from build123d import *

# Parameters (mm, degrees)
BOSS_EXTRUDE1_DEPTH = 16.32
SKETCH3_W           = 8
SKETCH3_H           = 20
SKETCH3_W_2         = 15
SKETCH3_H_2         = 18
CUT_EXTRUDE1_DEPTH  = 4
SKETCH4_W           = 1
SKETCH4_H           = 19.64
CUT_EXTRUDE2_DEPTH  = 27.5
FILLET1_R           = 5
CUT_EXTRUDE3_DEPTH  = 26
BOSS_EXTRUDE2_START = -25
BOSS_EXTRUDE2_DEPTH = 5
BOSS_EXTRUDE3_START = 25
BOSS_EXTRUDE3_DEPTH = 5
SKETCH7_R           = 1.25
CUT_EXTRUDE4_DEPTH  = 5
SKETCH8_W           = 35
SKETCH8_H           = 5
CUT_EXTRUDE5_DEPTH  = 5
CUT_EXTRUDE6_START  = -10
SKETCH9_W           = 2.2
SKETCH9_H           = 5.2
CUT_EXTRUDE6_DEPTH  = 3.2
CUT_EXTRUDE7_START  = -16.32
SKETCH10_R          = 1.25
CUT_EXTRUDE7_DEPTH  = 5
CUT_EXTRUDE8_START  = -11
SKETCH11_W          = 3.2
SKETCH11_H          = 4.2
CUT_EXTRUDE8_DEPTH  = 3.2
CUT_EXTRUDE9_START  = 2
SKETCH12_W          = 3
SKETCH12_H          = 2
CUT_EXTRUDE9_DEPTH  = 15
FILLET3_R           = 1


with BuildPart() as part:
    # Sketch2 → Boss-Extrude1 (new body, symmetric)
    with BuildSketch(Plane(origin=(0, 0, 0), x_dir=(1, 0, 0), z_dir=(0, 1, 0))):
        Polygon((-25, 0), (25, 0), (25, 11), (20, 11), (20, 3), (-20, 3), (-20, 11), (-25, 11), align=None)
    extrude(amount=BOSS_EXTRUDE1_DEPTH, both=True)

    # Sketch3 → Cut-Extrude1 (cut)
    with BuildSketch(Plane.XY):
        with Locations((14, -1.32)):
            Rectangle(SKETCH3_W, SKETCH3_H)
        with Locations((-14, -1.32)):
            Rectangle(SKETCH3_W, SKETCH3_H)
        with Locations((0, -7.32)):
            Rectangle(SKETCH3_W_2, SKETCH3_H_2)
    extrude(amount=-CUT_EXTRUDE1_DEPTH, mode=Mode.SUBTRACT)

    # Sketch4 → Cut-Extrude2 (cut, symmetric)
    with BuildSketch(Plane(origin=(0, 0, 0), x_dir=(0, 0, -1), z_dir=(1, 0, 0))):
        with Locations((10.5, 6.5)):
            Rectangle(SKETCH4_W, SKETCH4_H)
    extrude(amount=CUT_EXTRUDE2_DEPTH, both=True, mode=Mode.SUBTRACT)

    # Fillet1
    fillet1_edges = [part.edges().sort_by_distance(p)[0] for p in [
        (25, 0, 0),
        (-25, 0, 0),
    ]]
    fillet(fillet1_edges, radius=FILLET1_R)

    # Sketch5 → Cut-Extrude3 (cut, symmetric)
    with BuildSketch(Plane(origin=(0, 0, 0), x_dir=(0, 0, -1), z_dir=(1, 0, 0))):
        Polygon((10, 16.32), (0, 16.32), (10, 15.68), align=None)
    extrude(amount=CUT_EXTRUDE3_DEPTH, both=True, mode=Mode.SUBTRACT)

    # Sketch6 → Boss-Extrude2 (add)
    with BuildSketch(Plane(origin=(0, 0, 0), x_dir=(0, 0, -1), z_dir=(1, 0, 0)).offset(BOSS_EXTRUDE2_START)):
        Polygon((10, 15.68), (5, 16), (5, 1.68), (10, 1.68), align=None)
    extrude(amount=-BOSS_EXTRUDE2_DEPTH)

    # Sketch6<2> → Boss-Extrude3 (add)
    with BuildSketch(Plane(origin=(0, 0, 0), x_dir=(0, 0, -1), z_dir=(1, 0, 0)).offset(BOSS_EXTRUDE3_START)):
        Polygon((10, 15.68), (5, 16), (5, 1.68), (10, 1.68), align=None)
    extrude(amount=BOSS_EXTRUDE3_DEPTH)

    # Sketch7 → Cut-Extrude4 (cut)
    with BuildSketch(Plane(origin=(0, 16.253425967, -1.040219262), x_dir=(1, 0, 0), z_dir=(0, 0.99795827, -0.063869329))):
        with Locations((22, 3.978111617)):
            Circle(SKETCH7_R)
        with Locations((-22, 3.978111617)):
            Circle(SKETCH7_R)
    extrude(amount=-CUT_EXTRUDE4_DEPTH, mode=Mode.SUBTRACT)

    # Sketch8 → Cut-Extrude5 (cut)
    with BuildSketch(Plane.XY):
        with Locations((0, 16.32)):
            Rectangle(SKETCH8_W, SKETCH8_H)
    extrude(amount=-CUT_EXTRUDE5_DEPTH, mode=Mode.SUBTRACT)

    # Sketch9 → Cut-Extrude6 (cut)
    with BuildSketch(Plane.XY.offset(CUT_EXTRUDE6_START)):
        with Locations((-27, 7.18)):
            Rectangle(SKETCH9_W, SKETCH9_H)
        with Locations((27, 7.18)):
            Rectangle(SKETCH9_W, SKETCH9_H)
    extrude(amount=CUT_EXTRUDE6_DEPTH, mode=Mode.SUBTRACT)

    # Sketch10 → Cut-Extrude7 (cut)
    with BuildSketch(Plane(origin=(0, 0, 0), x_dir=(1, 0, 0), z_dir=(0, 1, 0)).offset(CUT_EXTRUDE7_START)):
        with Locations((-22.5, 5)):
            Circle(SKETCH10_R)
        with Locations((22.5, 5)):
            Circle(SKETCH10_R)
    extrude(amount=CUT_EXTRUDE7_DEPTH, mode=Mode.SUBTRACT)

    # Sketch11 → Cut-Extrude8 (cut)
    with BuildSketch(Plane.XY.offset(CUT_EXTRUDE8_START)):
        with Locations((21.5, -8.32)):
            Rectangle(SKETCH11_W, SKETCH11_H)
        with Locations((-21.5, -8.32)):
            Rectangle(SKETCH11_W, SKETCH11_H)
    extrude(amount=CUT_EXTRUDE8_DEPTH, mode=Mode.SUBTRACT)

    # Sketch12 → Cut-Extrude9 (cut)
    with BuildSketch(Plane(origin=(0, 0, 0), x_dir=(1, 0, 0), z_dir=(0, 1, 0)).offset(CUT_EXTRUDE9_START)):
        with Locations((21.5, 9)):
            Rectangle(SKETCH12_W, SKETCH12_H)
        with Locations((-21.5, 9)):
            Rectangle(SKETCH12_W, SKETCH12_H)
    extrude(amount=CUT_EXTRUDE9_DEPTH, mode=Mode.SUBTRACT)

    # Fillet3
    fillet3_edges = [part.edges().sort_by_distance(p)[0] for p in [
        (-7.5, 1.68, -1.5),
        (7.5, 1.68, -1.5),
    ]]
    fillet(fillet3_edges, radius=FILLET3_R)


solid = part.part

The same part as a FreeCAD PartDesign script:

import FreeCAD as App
import Part
import Sketcher
from FreeCAD import Vector
Q = App.Units.Quantity


def edges_at(feature, points):
    """Names of the edges that pass closest to the given points."""
    edges = feature.Shape.Edges
    near = lambda p: min(range(len(edges)), key=lambda i: edges[i].distToShape(Part.Vertex(*p))[0])
    return sorted({f"Edge{near(p) + 1}" for p in points})

doc = App.newDocument("Part")
body = doc.addObject("PartDesign::Body", "Body")

# Sketch on XZ plane
sketch1 = body.newObject("Sketcher::SketchObject", "Sketch")
sketch1.AttachmentSupport = (doc.getObject("XZ_Plane"), [""])
sketch1.MapMode = "FlatFace"
sketch1.addGeometry([
    Part.LineSegment(Vector(-25, 0, 0), Vector(25, 0, 0)),  # 0
    Part.LineSegment(Vector(25, 0, 0), Vector(25, -11, 0)),  # 1
    Part.LineSegment(Vector(25, -11, 0), Vector(20, -11, 0)),  # 2
    Part.LineSegment(Vector(20, -11, 0), Vector(20, -3, 0)),  # 3
    Part.LineSegment(Vector(20, -3, 0), Vector(-20, -3, 0)),  # 4
    Part.LineSegment(Vector(-20, -3, 0), Vector(-20, -11, 0)),  # 5
    Part.LineSegment(Vector(-20, -11, 0), Vector(-25, -11, 0)),  # 6
    Part.LineSegment(Vector(-25, -11, 0), Vector(-25, 0, 0)),  # 7
], False)
sketch1.addConstraint([
    Sketcher.Constraint("Coincident", 0, 2, 1, 1),
    Sketcher.Constraint("Coincident", 1, 2, 2, 1),
    Sketcher.Constraint("Coincident", 2, 2, 3, 1),
    Sketcher.Constraint("Coincident", 3, 2, 4, 1),
    Sketcher.Constraint("Coincident", 4, 2, 5, 1),
    Sketcher.Constraint("Coincident", 5, 2, 6, 1),
    Sketcher.Constraint("Coincident", 6, 2, 7, 1),
    Sketcher.Constraint("Coincident", 7, 2, 0, 1),
    Sketcher.Constraint("Horizontal", 0),
    Sketcher.Constraint("Vertical", 1),
    Sketcher.Constraint("Horizontal", 2),
    Sketcher.Constraint("Vertical", 3),
    Sketcher.Constraint("Horizontal", 4),
    Sketcher.Constraint("Vertical", 5),
    Sketcher.Constraint("Horizontal", 6),
    Sketcher.Constraint("Vertical", 7),
    Sketcher.Constraint("Symmetric", 0, 2, 7, 2, -1, 1),
    Sketcher.Constraint("Symmetric", 2, 2, 5, 2, -2),
    Sketcher.Constraint("DistanceX", 0, 1, 0, 2, Q("50 mm")),
    Sketcher.Constraint("DistanceX", 2, 2, 2, 1, Q("5 mm")),
    Sketcher.Constraint("DistanceY", 1, 2, 1, 1, Q("11 mm")),
    Sketcher.Constraint("DistanceY", 3, 1, 3, 2, Q("8 mm")),
])
pad1 = body.newObject("PartDesign::Pad", "Pad")
pad1.Profile = sketch1
pad1.Length = 32.64
pad1.Midplane = True

# Sketch on XY plane
sketch2 = body.newObject("Sketcher::SketchObject", "Sketch001")
sketch2.AttachmentSupport = (doc.getObject("XY_Plane"), [""])
sketch2.MapMode = "FlatFace"
sketch2.addGeometry([
    Part.LineSegment(Vector(10, 8.68, 0), Vector(10, -11.32, 0)),  # 0
    Part.LineSegment(Vector(10, -11.32, 0), Vector(18, -11.32, 0)),  # 1
    Part.LineSegment(Vector(18, -11.32, 0), Vector(18, 8.68, 0)),  # 2
    Part.LineSegment(Vector(18, 8.68, 0), Vector(10, 8.68, 0)),  # 3
    Part.LineSegment(Vector(-18, 8.68, 0), Vector(-18, -11.32, 0)),  # 4
    Part.LineSegment(Vector(-18, -11.32, 0), Vector(-10, -11.32, 0)),  # 5
    Part.LineSegment(Vector(-10, -11.32, 0), Vector(-10, 8.68, 0)),  # 6
    Part.LineSegment(Vector(-10, 8.68, 0), Vector(-18, 8.68, 0)),  # 7
    Part.LineSegment(Vector(-7.5, 1.68, 0), Vector(-7.5, -16.32, 0)),  # 8
    Part.LineSegment(Vector(-7.5, -16.32, 0), Vector(7.5, -16.32, 0)),  # 9
    Part.LineSegment(Vector(7.5, -16.32, 0), Vector(7.5, 1.68, 0)),  # 10
    Part.LineSegment(Vector(7.5, 1.68, 0), Vector(-7.5, 1.68, 0)),  # 11
], False)
sketch2.addConstraint([
    Sketcher.Constraint("Coincident", 0, 2, 1, 1),
    Sketcher.Constraint("Coincident", 1, 2, 2, 1),
    Sketcher.Constraint("Coincident", 2, 2, 3, 1),
    Sketcher.Constraint("Coincident", 3, 2, 0, 1),
    Sketcher.Constraint("Coincident", 4, 2, 5, 1),
    Sketcher.Constraint("Coincident", 5, 2, 6, 1),
    Sketcher.Constraint("Coincident", 6, 2, 7, 1),
    Sketcher.Constraint("Coincident", 7, 2, 4, 1),
    Sketcher.Constraint("Coincident", 8, 2, 9, 1),
    Sketcher.Constraint("Coincident", 9, 2, 10, 1),
    Sketcher.Constraint("Coincident", 10, 2, 11, 1),
    Sketcher.Constraint("Coincident", 11, 2, 8, 1),
    Sketcher.Constraint("Vertical", 0),
    Sketcher.Constraint("Horizontal", 1),
    Sketcher.Constraint("Vertical", 2),
    Sketcher.Constraint("Horizontal", 3),
    Sketcher.Constraint("Vertical", 4),
    Sketcher.Constraint("Horizontal", 5),
    Sketcher.Constraint("Vertical", 6),
    Sketcher.Constraint("Horizontal", 7),
    Sketcher.Constraint("Vertical", 8),
    Sketcher.Constraint("Horizontal", 9),
    Sketcher.Constraint("Vertical", 10),
    Sketcher.Constraint("Horizontal", 11),
    Sketcher.Constraint("Symmetric", 1, 2, 4, 2, -2),
    Sketcher.Constraint("Symmetric", 3, 2, 6, 2, -2),
    Sketcher.Constraint("DistanceX", 1, 1, 1, 2, Q("8 mm")),
    Sketcher.Constraint("DistanceX", 9, 1, 9, 2, Q("15 mm")),
    Sketcher.Constraint("DistanceY", 0, 2, 0, 1, Q("20 mm")),
    Sketcher.Constraint("DistanceY", 8, 2, 8, 1, Q("18 mm")),
    Sketcher.Constraint("DistanceX", -1, 1, 0, 2, Q("10 mm")),
    Sketcher.Constraint("DistanceY", 8, 2, 5, 2, Q("5 mm")),
    Sketcher.Constraint("DistanceX", 8, 2, -1, 1, Q("7.5 mm")),
    Sketcher.Constraint("DistanceY", 0, 2, -1, 1, Q("11.32 mm")),
])
pocket1 = body.newObject("PartDesign::Pocket", "Pocket")
pocket1.Profile = sketch2
pocket1.Length = 4

# Sketch on YZ plane
sketch3 = body.newObject("Sketcher::SketchObject", "Sketch002")
sketch3.AttachmentSupport = (doc.getObject("YZ_Plane"), [""])
sketch3.MapMode = "FlatFace"
sketch3.addGeometry([
    Part.LineSegment(Vector(16.32, -10, 0), Vector(-3.32, -10, 0)),
    Part.LineSegment(Vector(-3.32, -10, 0), Vector(-3.32, -11, 0)),
    Part.LineSegment(Vector(-3.32, -11, 0), Vector(16.32, -11, 0)),
    Part.LineSegment(Vector(16.32, -11, 0), Vector(16.32, -10, 0)),
], False)
sketch3.addConstraint([
    Sketcher.Constraint("Coincident", 0, 2, 1, 1),
    Sketcher.Constraint("Coincident", 1, 2, 2, 1),
    Sketcher.Constraint("Coincident", 2, 2, 3, 1),
    Sketcher.Constraint("Coincident", 3, 2, 0, 1),
    Sketcher.Constraint("Horizontal", 0),
    Sketcher.Constraint("Vertical", 1),
    Sketcher.Constraint("Horizontal", 2),
    Sketcher.Constraint("Vertical", 3),
    Sketcher.Constraint("DistanceY", 1, 2, 1, 1, Q("1 mm")),
    Sketcher.Constraint("DistanceY", 0, 2, -1, 1, Q("10 mm")),
    Sketcher.Constraint("DistanceX", 0, 2, 0, 1, Q("19.64 mm")),
    Sketcher.Constraint("DistanceX", 0, 2, -1, 1, Q("3.32 mm")),
])
pocket2 = body.newObject("PartDesign::Pocket", "Pocket001")
pocket2.Profile = sketch3
pocket2.Length = 55
pocket2.Midplane = True
doc.recompute()

fillet = body.newObject("PartDesign::Fillet", "Fillet")
fillet.Base = (pocket2, edges_at(pocket2, [(25, 0, 0), (-25, 0, 0)]))
fillet.Radius = 5

# Sketch on YZ plane
sketch4 = body.newObject("Sketcher::SketchObject", "Sketch003")
sketch4.AttachmentSupport = (doc.getObject("YZ_Plane"), [""])
sketch4.MapMode = "FlatFace"
sketch4.addGeometry([
    Part.LineSegment(Vector(16.32, -10, 0), Vector(16.32, 0, 0)),
    Part.LineSegment(Vector(16.32, 0, 0), Vector(15.68, -10, 0)),
    Part.LineSegment(Vector(15.68, -10, 0), Vector(16.32, -10, 0)),
], False)
sketch4.addConstraint([
    Sketcher.Constraint("Coincident", 0, 2, 1, 1),
    Sketcher.Constraint("Coincident", 1, 2, 2, 1),
    Sketcher.Constraint("Coincident", 2, 2, 0, 1),
    Sketcher.Constraint("Vertical", 0),
    Sketcher.Constraint("Horizontal", 2),
    Sketcher.Constraint("PointOnObject", 0, 2, -1),
    Sketcher.Constraint("DistanceY", 0, 1, 0, 2, Q("10 mm")),
    Sketcher.Constraint("DistanceX", 2, 1, 2, 2, Q("0.64 mm")),
    Sketcher.Constraint("DistanceX", -1, 1, 0, 2, Q("16.32 mm")),
])
pocket3 = body.newObject("PartDesign::Pocket", "Pocket002")
pocket3.Profile = sketch4
pocket3.Length = 52
pocket3.Midplane = True

# Sketch on YZ plane
sketch5 = body.newObject("Sketcher::SketchObject", "Sketch004")
sketch5.AttachmentSupport = (doc.getObject("YZ_Plane"), [""])
sketch5.MapMode = "FlatFace"
sketch5.AttachmentOffset = App.Placement(Vector(0, 0, -25), App.Rotation())
sketch5.addGeometry([
    Part.LineSegment(Vector(15.68, -10, 0), Vector(16, -5, 0)),
    Part.LineSegment(Vector(16, -5, 0), Vector(1.68, -5, 0)),
    Part.LineSegment(Vector(1.68, -5, 0), Vector(1.68, -10, 0)),
    Part.LineSegment(Vector(1.68, -10, 0), Vector(15.68, -10, 0)),
], False)
sketch5.addConstraint([
    Sketcher.Constraint("Coincident", 0, 2, 1, 1),
    Sketcher.Constraint("Coincident", 1, 2, 2, 1),
    Sketcher.Constraint("Coincident", 2, 2, 3, 1),
    Sketcher.Constraint("Coincident", 3, 2, 0, 1),
    Sketcher.Constraint("Horizontal", 1),
    Sketcher.Constraint("Vertical", 2),
    Sketcher.Constraint("Horizontal", 3),
    Sketcher.Constraint("DistanceX", 3, 1, 3, 2, Q("14 mm")),
    Sketcher.Constraint("DistanceY", 2, 2, 2, 1, Q("5 mm")),
    Sketcher.Constraint("DistanceX", -1, 1, 0, 2, Q("16 mm")),
    Sketcher.Constraint("DistanceY", 0, 2, -1, 1, Q("5 mm")),
    Sketcher.Constraint("DistanceX", 1, 2, 1, 1, Q("14.32 mm")),
])
pad2 = body.newObject("PartDesign::Pad", "Pad001")
pad2.Profile = sketch5
pad2.Length = 5
pad2.Reversed = True

# Sketch on YZ plane
sketch6 = body.newObject("Sketcher::SketchObject", "Sketch005")
sketch6.AttachmentSupport = (doc.getObject("YZ_Plane"), [""])
sketch6.MapMode = "FlatFace"
sketch6.AttachmentOffset = App.Placement(Vector(0, 0, 25), App.Rotation())
sketch6.addGeometry([
    Part.LineSegment(Vector(15.68, -10, 0), Vector(16, -5, 0)),
    Part.LineSegment(Vector(16, -5, 0), Vector(1.68, -5, 0)),
    Part.LineSegment(Vector(1.68, -5, 0), Vector(1.68, -10, 0)),
    Part.LineSegment(Vector(1.68, -10, 0), Vector(15.68, -10, 0)),
], False)
sketch6.addConstraint([
    Sketcher.Constraint("Coincident", 0, 2, 1, 1),
    Sketcher.Constraint("Coincident", 1, 2, 2, 1),
    Sketcher.Constraint("Coincident", 2, 2, 3, 1),
    Sketcher.Constraint("Coincident", 3, 2, 0, 1),
    Sketcher.Constraint("Horizontal", 1),
    Sketcher.Constraint("Vertical", 2),
    Sketcher.Constraint("Horizontal", 3),
    Sketcher.Constraint("DistanceX", 3, 1, 3, 2, Q("14 mm")),
    Sketcher.Constraint("DistanceY", 2, 2, 2, 1, Q("5 mm")),
    Sketcher.Constraint("DistanceX", -1, 1, 0, 2, Q("16 mm")),
    Sketcher.Constraint("DistanceY", 0, 2, -1, 1, Q("5 mm")),
    Sketcher.Constraint("DistanceX", 1, 2, 1, 1, Q("14.32 mm")),
])
pad3 = body.newObject("PartDesign::Pad", "Pad002")
pad3.Profile = sketch6
pad3.Length = 5

# Sketch on an angled plane
sketch7 = body.newObject("Sketcher::SketchObject", "Sketch006")
sketch7.Placement = App.Placement(Vector(0, 16.253426, -1.040219), App.Rotation(Vector(1, 0, 0), Vector(0, -0.063869329, -0.99795827), Vector(0, 0.99795827, -0.063869329), "ZXY"))
sketch7.addGeometry([
    Part.Circle(Vector(22, 3.978112, 0), Vector(0, 0, 1), 1.25),
    Part.Circle(Vector(-22, 3.978112, 0), Vector(0, 0, 1), 1.25),
], False)
sketch7.addConstraint([
    Sketcher.Constraint("Equal", 0, 1),
    Sketcher.Constraint("Symmetric", 0, 3, 1, 3, -2),
    Sketcher.Constraint("Diameter", 0, Q("2.5 mm")),
    Sketcher.Constraint("DistanceX", -1, 1, 0, 3, Q("22 mm")),
    Sketcher.Constraint("DistanceY", -1, 1, 0, 3, Q("3.978112 mm")),
])
pocket4 = body.newObject("PartDesign::Pocket", "Pocket003")
pocket4.Profile = sketch7
pocket4.Length = 5

# Sketch on XY plane
sketch8 = body.newObject("Sketcher::SketchObject", "Sketch007")
sketch8.AttachmentSupport = (doc.getObject("XY_Plane"), [""])
sketch8.MapMode = "FlatFace"
sketch8.addGeometry([
    Part.LineSegment(Vector(-17.5, 18.82, 0), Vector(-17.5, 13.82, 0)),
    Part.LineSegment(Vector(-17.5, 13.82, 0), Vector(17.5, 13.82, 0)),
    Part.LineSegment(Vector(17.5, 13.82, 0), Vector(17.5, 18.82, 0)),
    Part.LineSegment(Vector(17.5, 18.82, 0), Vector(-17.5, 18.82, 0)),
], False)
sketch8.addConstraint([
    Sketcher.Constraint("Coincident", 0, 2, 1, 1),
    Sketcher.Constraint("Coincident", 1, 2, 2, 1),
    Sketcher.Constraint("Coincident", 2, 2, 3, 1),
    Sketcher.Constraint("Coincident", 3, 2, 0, 1),
    Sketcher.Constraint("Vertical", 0),
    Sketcher.Constraint("Horizontal", 1),
    Sketcher.Constraint("Vertical", 2),
    Sketcher.Constraint("Horizontal", 3),
    Sketcher.Constraint("DistanceX", 1, 1, 1, 2, Q("35 mm")),
    Sketcher.Constraint("DistanceY", 0, 2, 0, 1, Q("5 mm")),
    Sketcher.Constraint("DistanceX", 0, 2, -1, 1, Q("17.5 mm")),
    Sketcher.Constraint("DistanceY", -1, 1, 0, 2, Q("13.82 mm")),
])
pocket5 = body.newObject("PartDesign::Pocket", "Pocket004")
pocket5.Profile = sketch8
pocket5.Length = 5

# Sketch on XY plane
sketch9 = body.newObject("Sketcher::SketchObject", "Sketch008")
sketch9.AttachmentSupport = (doc.getObject("XY_Plane"), [""])
sketch9.MapMode = "FlatFace"
sketch9.AttachmentOffset = App.Placement(Vector(0, 0, -10), App.Rotation())
sketch9.addGeometry([
    Part.LineSegment(Vector(-28.1, 9.78, 0), Vector(-28.1, 4.58, 0)),  # 0
    Part.LineSegment(Vector(-28.1, 4.58, 0), Vector(-25.9, 4.58, 0)),  # 1
    Part.LineSegment(Vector(-25.9, 4.58, 0), Vector(-25.9, 9.78, 0)),  # 2
    Part.LineSegment(Vector(-25.9, 9.78, 0), Vector(-28.1, 9.78, 0)),  # 3
    Part.LineSegment(Vector(25.9, 9.78, 0), Vector(25.9, 4.58, 0)),  # 4
    Part.LineSegment(Vector(25.9, 4.58, 0), Vector(28.1, 4.58, 0)),  # 5
    Part.LineSegment(Vector(28.1, 4.58, 0), Vector(28.1, 9.78, 0)),  # 6
    Part.LineSegment(Vector(28.1, 9.78, 0), Vector(25.9, 9.78, 0)),  # 7
], False)
sketch9.addConstraint([
    Sketcher.Constraint("Coincident", 0, 2, 1, 1),
    Sketcher.Constraint("Coincident", 1, 2, 2, 1),
    Sketcher.Constraint("Coincident", 2, 2, 3, 1),
    Sketcher.Constraint("Coincident", 3, 2, 0, 1),
    Sketcher.Constraint("Coincident", 4, 2, 5, 1),
    Sketcher.Constraint("Coincident", 5, 2, 6, 1),
    Sketcher.Constraint("Coincident", 6, 2, 7, 1),
    Sketcher.Constraint("Coincident", 7, 2, 4, 1),
    Sketcher.Constraint("Vertical", 0),
    Sketcher.Constraint("Horizontal", 1),
    Sketcher.Constraint("Vertical", 2),
    Sketcher.Constraint("Horizontal", 3),
    Sketcher.Constraint("Vertical", 4),
    Sketcher.Constraint("Horizontal", 5),
    Sketcher.Constraint("Vertical", 6),
    Sketcher.Constraint("Horizontal", 7),
    Sketcher.Constraint("Symmetric", 1, 2, 4, 2, -2),
    Sketcher.Constraint("Symmetric", 3, 2, 6, 2, -2),
    Sketcher.Constraint("DistanceX", 1, 1, 1, 2, Q("2.2 mm")),
    Sketcher.Constraint("DistanceY", 0, 2, 0, 1, Q("5.2 mm")),
    Sketcher.Constraint("DistanceX", 0, 2, 4, 2, Q("54 mm")),
    Sketcher.Constraint("DistanceY", -1, 1, 0, 2, Q("4.58 mm")),
])
pocket6 = body.newObject("PartDesign::Pocket", "Pocket005")
pocket6.Profile = sketch9
pocket6.Length = 3.2
pocket6.Reversed = True

# Sketch on XZ plane
sketch10 = body.newObject("Sketcher::SketchObject", "Sketch009")
sketch10.AttachmentSupport = (doc.getObject("XZ_Plane"), [""])
sketch10.MapMode = "FlatFace"
sketch10.AttachmentOffset = App.Placement(Vector(0, 0, 16.32), App.Rotation())
sketch10.addGeometry([
    Part.Circle(Vector(-22.5, -5, 0), Vector(0, 0, 1), 1.25),
    Part.Circle(Vector(22.5, -5, 0), Vector(0, 0, 1), 1.25),
], False)
sketch10.addConstraint([
    Sketcher.Constraint("Equal", 0, 1),
    Sketcher.Constraint("Symmetric", 0, 3, 1, 3, -2),
    Sketcher.Constraint("Diameter", 0, Q("2.5 mm")),
    Sketcher.Constraint("DistanceY", 0, 3, -1, 1, Q("5 mm")),
    Sketcher.Constraint("DistanceX", 0, 3, 1, 3, Q("45 mm")),
])
pocket7 = body.newObject("PartDesign::Pocket", "Pocket006")
pocket7.Profile = sketch10
pocket7.Length = 5

# Sketch on XY plane
sketch11 = body.newObject("Sketcher::SketchObject", "Sketch010")
sketch11.AttachmentSupport = (doc.getObject("XY_Plane"), [""])
sketch11.MapMode = "FlatFace"
sketch11.AttachmentOffset = App.Placement(Vector(0, 0, -11), App.Rotation())
sketch11.addGeometry([
    Part.LineSegment(Vector(19.9, -6.22, 0), Vector(19.9, -10.42, 0)),  # 0
    Part.LineSegment(Vector(19.9, -10.42, 0), Vector(23.1, -10.42, 0)),  # 1
    Part.LineSegment(Vector(23.1, -10.42, 0), Vector(23.1, -6.22, 0)),  # 2
    Part.LineSegment(Vector(23.1, -6.22, 0), Vector(19.9, -6.22, 0)),  # 3
    Part.LineSegment(Vector(-23.1, -6.22, 0), Vector(-23.1, -10.42, 0)),  # 4
    Part.LineSegment(Vector(-23.1, -10.42, 0), Vector(-19.9, -10.42, 0)),  # 5
    Part.LineSegment(Vector(-19.9, -10.42, 0), Vector(-19.9, -6.22, 0)),  # 6
    Part.LineSegment(Vector(-19.9, -6.22, 0), Vector(-23.1, -6.22, 0)),  # 7
], False)
sketch11.addConstraint([
    Sketcher.Constraint("Coincident", 0, 2, 1, 1),
    Sketcher.Constraint("Coincident", 1, 2, 2, 1),
    Sketcher.Constraint("Coincident", 2, 2, 3, 1),
    Sketcher.Constraint("Coincident", 3, 2, 0, 1),
    Sketcher.Constraint("Coincident", 4, 2, 5, 1),
    Sketcher.Constraint("Coincident", 5, 2, 6, 1),
    Sketcher.Constraint("Coincident", 6, 2, 7, 1),
    Sketcher.Constraint("Coincident", 7, 2, 4, 1),
    Sketcher.Constraint("Vertical", 0),
    Sketcher.Constraint("Horizontal", 1),
    Sketcher.Constraint("Vertical", 2),
    Sketcher.Constraint("Horizontal", 3),
    Sketcher.Constraint("Vertical", 4),
    Sketcher.Constraint("Horizontal", 5),
    Sketcher.Constraint("Vertical", 6),
    Sketcher.Constraint("Horizontal", 7),
    Sketcher.Constraint("Symmetric", 1, 2, 4, 2, -2),
    Sketcher.Constraint("Symmetric", 3, 2, 6, 2, -2),
    Sketcher.Constraint("DistanceX", 1, 1, 1, 2, Q("3.2 mm")),
    Sketcher.Constraint("DistanceY", 0, 2, 0, 1, Q("4.2 mm")),
    Sketcher.Constraint("DistanceX", 4, 2, 0, 2, Q("43 mm")),
    Sketcher.Constraint("DistanceY", 0, 2, -1, 1, Q("10.42 mm")),
])
pocket8 = body.newObject("PartDesign::Pocket", "Pocket007")
pocket8.Profile = sketch11
pocket8.Length = 3.2
pocket8.Reversed = True

# Sketch on XZ plane
sketch12 = body.newObject("Sketcher::SketchObject", "Sketch011")
sketch12.AttachmentSupport = (doc.getObject("XZ_Plane"), [""])
sketch12.MapMode = "FlatFace"
sketch12.AttachmentOffset = App.Placement(Vector(0, 0, -2), App.Rotation())
sketch12.addGeometry([
    Part.LineSegment(Vector(20, -10, 0), Vector(20, -8, 0)),  # 0
    Part.LineSegment(Vector(20, -8, 0), Vector(23, -8, 0)),  # 1
    Part.LineSegment(Vector(23, -8, 0), Vector(23, -10, 0)),  # 2
    Part.LineSegment(Vector(23, -10, 0), Vector(20, -10, 0)),  # 3
    Part.LineSegment(Vector(-23, -10, 0), Vector(-23, -8, 0)),  # 4
    Part.LineSegment(Vector(-23, -8, 0), Vector(-20, -8, 0)),  # 5
    Part.LineSegment(Vector(-20, -8, 0), Vector(-20, -10, 0)),  # 6
    Part.LineSegment(Vector(-20, -10, 0), Vector(-23, -10, 0)),  # 7
], False)
sketch12.addConstraint([
    Sketcher.Constraint("Coincident", 0, 2, 1, 1),
    Sketcher.Constraint("Coincident", 1, 2, 2, 1),
    Sketcher.Constraint("Coincident", 2, 2, 3, 1),
    Sketcher.Constraint("Coincident", 3, 2, 0, 1),
    Sketcher.Constraint("Coincident", 4, 2, 5, 1),
    Sketcher.Constraint("Coincident", 5, 2, 6, 1),
    Sketcher.Constraint("Coincident", 6, 2, 7, 1),
    Sketcher.Constraint("Coincident", 7, 2, 4, 1),
    Sketcher.Constraint("Vertical", 0),
    Sketcher.Constraint("Horizontal", 1),
    Sketcher.Constraint("Vertical", 2),
    Sketcher.Constraint("Horizontal", 3),
    Sketcher.Constraint("Vertical", 4),
    Sketcher.Constraint("Horizontal", 5),
    Sketcher.Constraint("Vertical", 6),
    Sketcher.Constraint("Horizontal", 7),
    Sketcher.Constraint("Symmetric", 1, 2, 4, 2, -2),
    Sketcher.Constraint("Symmetric", 3, 2, 6, 2, -2),
    Sketcher.Constraint("DistanceX", 1, 1, 1, 2, Q("3 mm")),
    Sketcher.Constraint("DistanceY", 0, 1, 0, 2, Q("2 mm")),
    Sketcher.Constraint("DistanceX", -1, 1, 0, 2, Q("20 mm")),
    Sketcher.Constraint("DistanceY", 0, 2, -1, 1, Q("8 mm")),
])
pocket9 = body.newObject("PartDesign::Pocket", "Pocket008")
pocket9.Profile = sketch12
pocket9.Length = 15
doc.recompute()

fillet2 = body.newObject("PartDesign::Fillet", "Fillet001")
fillet2.Base = (pocket9, edges_at(pocket9, [(-7.5, 1.68, -1.5), (7.5, 1.68, -1.5)]))
fillet2.Radius = 1

doc.recompute()
